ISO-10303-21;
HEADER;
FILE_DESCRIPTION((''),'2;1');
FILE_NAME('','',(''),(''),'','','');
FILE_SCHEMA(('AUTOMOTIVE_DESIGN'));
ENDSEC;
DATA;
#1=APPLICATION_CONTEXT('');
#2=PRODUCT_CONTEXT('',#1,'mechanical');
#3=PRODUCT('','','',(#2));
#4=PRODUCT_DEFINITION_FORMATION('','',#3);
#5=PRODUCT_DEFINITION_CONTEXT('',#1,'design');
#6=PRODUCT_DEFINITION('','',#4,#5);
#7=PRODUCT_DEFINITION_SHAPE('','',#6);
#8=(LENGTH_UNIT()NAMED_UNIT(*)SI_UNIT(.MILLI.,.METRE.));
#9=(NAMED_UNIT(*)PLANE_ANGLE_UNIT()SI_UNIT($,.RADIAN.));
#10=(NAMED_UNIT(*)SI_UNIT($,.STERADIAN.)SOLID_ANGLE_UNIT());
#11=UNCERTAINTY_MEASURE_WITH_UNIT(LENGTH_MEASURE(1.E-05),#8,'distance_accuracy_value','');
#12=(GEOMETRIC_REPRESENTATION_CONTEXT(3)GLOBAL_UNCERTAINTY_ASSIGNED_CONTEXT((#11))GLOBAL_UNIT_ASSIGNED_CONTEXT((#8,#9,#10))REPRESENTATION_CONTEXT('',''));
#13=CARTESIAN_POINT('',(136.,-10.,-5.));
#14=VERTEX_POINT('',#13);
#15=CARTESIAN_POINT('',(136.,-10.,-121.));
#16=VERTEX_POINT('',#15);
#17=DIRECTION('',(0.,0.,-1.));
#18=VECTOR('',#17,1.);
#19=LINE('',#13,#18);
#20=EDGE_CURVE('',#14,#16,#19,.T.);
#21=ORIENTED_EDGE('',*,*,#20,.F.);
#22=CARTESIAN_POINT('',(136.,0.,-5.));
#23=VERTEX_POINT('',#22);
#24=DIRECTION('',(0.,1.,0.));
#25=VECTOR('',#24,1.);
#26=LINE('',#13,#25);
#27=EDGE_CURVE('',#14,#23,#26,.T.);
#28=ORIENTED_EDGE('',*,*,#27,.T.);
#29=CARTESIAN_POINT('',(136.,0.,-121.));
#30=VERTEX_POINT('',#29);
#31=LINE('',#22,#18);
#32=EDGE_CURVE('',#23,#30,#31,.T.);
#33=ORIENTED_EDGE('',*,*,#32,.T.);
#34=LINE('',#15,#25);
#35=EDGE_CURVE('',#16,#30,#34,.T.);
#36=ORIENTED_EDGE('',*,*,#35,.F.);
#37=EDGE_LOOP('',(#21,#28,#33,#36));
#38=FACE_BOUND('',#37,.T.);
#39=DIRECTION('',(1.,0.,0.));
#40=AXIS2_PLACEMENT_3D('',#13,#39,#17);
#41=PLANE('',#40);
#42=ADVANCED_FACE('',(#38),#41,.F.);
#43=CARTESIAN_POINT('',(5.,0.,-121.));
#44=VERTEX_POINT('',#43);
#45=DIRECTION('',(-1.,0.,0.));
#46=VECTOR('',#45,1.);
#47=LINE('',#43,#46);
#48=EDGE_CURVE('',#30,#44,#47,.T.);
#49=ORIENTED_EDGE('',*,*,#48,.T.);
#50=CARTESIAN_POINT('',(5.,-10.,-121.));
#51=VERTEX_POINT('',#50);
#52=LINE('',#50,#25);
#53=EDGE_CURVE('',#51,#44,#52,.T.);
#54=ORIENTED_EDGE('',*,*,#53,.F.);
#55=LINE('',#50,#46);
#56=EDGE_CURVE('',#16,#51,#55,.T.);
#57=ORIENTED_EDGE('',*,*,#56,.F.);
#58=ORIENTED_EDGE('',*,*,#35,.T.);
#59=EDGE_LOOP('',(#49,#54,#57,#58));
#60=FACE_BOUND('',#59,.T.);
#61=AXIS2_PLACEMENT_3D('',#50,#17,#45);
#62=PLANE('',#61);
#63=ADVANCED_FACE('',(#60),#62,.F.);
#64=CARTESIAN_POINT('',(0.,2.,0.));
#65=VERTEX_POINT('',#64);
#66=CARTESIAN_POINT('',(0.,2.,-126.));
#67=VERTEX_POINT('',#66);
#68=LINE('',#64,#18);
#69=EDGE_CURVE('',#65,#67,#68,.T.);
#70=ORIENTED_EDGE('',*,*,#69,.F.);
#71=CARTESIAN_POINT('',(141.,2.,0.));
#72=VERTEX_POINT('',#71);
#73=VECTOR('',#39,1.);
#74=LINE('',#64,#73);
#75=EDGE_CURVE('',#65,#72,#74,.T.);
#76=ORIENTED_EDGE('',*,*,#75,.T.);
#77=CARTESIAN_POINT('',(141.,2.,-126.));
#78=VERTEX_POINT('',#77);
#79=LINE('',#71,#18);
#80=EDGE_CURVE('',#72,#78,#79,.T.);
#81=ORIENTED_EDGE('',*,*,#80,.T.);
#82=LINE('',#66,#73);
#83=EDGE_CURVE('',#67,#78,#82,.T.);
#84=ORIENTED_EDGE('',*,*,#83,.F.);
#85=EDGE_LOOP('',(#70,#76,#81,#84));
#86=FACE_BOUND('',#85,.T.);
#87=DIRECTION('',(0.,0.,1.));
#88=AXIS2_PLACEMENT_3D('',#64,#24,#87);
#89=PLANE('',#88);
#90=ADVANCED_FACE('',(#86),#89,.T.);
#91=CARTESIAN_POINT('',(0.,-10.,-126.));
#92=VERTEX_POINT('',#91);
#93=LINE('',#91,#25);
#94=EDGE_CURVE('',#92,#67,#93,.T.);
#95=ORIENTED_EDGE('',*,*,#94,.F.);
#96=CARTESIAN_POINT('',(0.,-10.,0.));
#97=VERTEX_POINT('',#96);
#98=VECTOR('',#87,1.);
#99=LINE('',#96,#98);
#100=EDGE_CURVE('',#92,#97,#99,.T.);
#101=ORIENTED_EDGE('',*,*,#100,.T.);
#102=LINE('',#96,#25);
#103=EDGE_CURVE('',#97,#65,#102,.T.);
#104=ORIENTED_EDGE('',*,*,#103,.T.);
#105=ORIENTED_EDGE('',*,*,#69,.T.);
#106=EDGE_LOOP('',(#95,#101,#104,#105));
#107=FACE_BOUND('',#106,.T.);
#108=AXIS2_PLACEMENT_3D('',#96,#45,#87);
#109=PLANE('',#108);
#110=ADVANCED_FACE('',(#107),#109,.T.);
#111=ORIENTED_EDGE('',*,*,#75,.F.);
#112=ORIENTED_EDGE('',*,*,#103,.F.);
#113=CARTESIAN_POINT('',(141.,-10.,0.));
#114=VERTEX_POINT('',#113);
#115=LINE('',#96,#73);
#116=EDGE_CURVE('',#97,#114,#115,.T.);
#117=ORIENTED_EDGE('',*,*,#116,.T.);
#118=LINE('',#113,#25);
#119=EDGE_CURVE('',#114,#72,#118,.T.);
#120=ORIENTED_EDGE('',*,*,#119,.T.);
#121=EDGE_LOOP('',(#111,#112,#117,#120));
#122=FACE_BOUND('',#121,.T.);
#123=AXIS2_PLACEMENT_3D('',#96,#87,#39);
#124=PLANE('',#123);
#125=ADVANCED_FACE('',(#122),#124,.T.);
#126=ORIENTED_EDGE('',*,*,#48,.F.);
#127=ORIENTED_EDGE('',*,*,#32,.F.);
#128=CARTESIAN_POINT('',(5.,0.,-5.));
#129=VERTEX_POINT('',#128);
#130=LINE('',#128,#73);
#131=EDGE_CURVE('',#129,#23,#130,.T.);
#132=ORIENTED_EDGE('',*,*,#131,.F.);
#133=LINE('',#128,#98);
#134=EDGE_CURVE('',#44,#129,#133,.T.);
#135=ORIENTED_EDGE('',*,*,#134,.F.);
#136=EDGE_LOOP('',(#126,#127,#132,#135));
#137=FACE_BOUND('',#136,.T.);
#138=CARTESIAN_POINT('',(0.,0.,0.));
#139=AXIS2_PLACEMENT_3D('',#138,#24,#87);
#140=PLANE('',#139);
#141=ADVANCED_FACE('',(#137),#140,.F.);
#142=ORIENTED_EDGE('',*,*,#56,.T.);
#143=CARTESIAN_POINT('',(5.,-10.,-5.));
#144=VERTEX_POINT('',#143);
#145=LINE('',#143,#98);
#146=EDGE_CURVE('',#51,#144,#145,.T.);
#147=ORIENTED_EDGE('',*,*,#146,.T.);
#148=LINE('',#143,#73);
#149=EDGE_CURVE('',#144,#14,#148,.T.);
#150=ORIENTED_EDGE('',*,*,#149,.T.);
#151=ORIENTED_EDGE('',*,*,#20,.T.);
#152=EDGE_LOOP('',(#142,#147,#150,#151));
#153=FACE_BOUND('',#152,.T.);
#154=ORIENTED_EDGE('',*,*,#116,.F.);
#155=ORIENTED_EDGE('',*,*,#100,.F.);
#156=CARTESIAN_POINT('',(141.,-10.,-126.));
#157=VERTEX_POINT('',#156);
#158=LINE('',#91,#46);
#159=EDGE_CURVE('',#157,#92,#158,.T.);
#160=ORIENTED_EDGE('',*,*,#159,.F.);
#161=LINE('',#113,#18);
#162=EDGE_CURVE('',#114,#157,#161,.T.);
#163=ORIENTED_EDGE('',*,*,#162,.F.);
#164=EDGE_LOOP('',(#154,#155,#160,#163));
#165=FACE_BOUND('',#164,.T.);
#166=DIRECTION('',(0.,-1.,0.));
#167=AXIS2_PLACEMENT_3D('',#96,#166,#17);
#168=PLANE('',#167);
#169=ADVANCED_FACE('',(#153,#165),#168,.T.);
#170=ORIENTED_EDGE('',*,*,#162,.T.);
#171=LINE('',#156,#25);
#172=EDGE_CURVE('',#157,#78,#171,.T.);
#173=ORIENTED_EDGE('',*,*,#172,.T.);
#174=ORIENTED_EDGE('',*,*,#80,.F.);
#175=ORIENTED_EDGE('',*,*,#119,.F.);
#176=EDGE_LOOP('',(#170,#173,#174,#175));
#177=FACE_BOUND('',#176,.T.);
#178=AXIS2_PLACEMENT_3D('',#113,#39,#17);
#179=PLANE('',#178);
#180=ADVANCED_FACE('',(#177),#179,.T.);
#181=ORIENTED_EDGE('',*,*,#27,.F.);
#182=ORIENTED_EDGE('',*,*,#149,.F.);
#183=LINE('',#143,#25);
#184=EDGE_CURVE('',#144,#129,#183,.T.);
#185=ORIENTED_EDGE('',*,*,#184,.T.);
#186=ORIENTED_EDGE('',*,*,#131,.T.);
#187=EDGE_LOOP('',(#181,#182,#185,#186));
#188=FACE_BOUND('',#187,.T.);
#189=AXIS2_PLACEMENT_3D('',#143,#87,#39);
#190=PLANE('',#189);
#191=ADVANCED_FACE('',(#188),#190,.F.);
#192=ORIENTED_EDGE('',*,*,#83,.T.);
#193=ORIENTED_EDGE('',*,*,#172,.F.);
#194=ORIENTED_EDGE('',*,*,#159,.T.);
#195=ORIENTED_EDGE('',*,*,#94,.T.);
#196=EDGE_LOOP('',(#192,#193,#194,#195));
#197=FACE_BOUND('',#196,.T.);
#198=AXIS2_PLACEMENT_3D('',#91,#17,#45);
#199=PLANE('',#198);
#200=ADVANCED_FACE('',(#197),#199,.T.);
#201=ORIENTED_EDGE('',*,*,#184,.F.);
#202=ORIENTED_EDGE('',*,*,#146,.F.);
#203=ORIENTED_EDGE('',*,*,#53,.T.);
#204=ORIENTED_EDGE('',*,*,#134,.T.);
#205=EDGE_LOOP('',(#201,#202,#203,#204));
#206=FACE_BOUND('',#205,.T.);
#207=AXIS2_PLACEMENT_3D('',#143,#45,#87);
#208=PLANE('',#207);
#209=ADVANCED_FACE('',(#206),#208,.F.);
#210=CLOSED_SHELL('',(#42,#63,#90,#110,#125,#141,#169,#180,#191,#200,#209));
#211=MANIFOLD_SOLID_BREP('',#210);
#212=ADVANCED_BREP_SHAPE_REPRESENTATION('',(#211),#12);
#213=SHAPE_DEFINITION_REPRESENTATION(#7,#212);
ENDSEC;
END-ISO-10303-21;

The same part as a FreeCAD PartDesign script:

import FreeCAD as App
import Part
import Sketcher

V = App.Vector
Q = App.Units.Quantity

doc = App.newDocument("Part")
body = doc.addObject("PartDesign::Body", "Body")

# Sketch on XZ plane
sketch1 = doc.addObject("Sketcher::SketchObject", "Sketch")
body.addObject(sketch1)
sketch1.AttachmentSupport = (doc.XZ_Plane, [""])
sketch1.MapMode = "FlatFace"
sketch1.addGeometry([
    Part.LineSegment(V(0, -126, 0), V(0, 0, 0)),  # 0
    Part.LineSegment(V(0, 0, 0), V(141, 0, 0)),  # 1
    Part.LineSegment(V(141, 0, 0), V(141, -126, 0)),  # 2
    Part.LineSegment(V(141, -126, 0), V(0, -126, 0)),  # 3
    Part.LineSegment(V(136, -5, 0), V(5, -5, 0)),  # 4
    Part.LineSegment(V(5, -5, 0), V(5, -121, 0)),  # 5
    Part.LineSegment(V(5, -121, 0), V(136, -121, 0)),  # 6
    Part.LineSegment(V(136, -121, 0), V(136, -5, 0)),  # 7
], False)
sketch1.addConstraint([
    Sketcher.Constraint("Coincident", 0, 2, 1, 1),
    Sketcher.Constraint("Coincident", 1, 2, 2, 1),
    Sketcher.Constraint("Coincident", 2, 2, 3, 1),
    Sketcher.Constraint("Coincident", 3, 2, 0, 1),
    Sketcher.Constraint("Coincident", 4, 2, 5, 1),
    Sketcher.Constraint("Coincident", 5, 2, 6, 1),
    Sketcher.Constraint("Coincident", 6, 2, 7, 1),
    Sketcher.Constraint("Coincident", 7, 2, 4, 1),
    Sketcher.Constraint("Vertical", 0),
    Sketcher.Constraint("Horizontal", 1),
    Sketcher.Constraint("Vertical", 2),
    Sketcher.Constraint("Horizontal", 3),
    Sketcher.Constraint("Horizontal", 4),
    Sketcher.Constraint("Vertical", 5),
    Sketcher.Constraint("Horizontal", 6),
    Sketcher.Constraint("Vertical", 7),
    Sketcher.Constraint("Coincident", 0, 2, -1, 1),
    Sketcher.Constraint("DistanceX", 1, 1, 1, 2, Q("141 mm")),
    Sketcher.Constraint("DistanceX", 4, 2, 4, 1, Q("131 mm")),
    Sketcher.Constraint("DistanceY", 0, 1, 0, 2, Q("126 mm")),
    Sketcher.Constraint("DistanceY", 5, 2, 5, 1, Q("116 mm")),
    Sketcher.Constraint("DistanceX", -1, 1, 4, 2, Q("5 mm")),
    Sketcher.Constraint("DistanceY", 4, 2, -1, 1, Q("5 mm")),
])
pad1 = doc.addObject("PartDesign::Pad", "Pad")
body.addObject(pad1)
pad1.Profile = sketch1
pad1.Length = 10

# Sketch on XZ plane
sketch2 = doc.addObject("Sketcher::SketchObject", "Sketch001")
body.addObject(sketch2)
sketch2.AttachmentSupport = (doc.XZ_Plane, [""])
sketch2.MapMode = "FlatFace"
sketch2.addGeometry([
    Part.LineSegment(V(0, -126, 0), V(0, 0, 0)),
    Part.LineSegment(V(0, 0, 0), V(141, 0, 0)),
    Part.LineSegment(V(141, 0, 0), V(141, -126, 0)),
    Part.LineSegment(V(141, -126, 0), V(0, -126, 0)),
], False)
sketch2.addConstraint([
    Sketcher.Constraint("Coincident", 0, 2, 1, 1),
    Sketcher.Constraint("Coincident", 1, 2, 2, 1),
    Sketcher.Constraint("Coincident", 2, 2, 3, 1),
    Sketcher.Constraint("Coincident", 3, 2, 0, 1),
    Sketcher.Constraint("Vertical", 0),
    Sketcher.Constraint("Horizontal", 1),
    Sketcher.Constraint("Vertical", 2),
    Sketcher.Constraint("Horizontal", 3),
    Sketcher.Constraint("Coincident", 0, 2, -1, 1),
    Sketcher.Constraint("DistanceX", 1, 1, 1, 2, Q("141 mm")),
    Sketcher.Constraint("DistanceY", 0, 1, 0, 2, Q("126 mm")),
])
pad2 = doc.addObject("PartDesign::Pad", "Pad001")
body.addObject(pad2)
pad2.Profile = sketch2
pad2.Length = 2
pad2.Reversed = True

doc.recompute()
